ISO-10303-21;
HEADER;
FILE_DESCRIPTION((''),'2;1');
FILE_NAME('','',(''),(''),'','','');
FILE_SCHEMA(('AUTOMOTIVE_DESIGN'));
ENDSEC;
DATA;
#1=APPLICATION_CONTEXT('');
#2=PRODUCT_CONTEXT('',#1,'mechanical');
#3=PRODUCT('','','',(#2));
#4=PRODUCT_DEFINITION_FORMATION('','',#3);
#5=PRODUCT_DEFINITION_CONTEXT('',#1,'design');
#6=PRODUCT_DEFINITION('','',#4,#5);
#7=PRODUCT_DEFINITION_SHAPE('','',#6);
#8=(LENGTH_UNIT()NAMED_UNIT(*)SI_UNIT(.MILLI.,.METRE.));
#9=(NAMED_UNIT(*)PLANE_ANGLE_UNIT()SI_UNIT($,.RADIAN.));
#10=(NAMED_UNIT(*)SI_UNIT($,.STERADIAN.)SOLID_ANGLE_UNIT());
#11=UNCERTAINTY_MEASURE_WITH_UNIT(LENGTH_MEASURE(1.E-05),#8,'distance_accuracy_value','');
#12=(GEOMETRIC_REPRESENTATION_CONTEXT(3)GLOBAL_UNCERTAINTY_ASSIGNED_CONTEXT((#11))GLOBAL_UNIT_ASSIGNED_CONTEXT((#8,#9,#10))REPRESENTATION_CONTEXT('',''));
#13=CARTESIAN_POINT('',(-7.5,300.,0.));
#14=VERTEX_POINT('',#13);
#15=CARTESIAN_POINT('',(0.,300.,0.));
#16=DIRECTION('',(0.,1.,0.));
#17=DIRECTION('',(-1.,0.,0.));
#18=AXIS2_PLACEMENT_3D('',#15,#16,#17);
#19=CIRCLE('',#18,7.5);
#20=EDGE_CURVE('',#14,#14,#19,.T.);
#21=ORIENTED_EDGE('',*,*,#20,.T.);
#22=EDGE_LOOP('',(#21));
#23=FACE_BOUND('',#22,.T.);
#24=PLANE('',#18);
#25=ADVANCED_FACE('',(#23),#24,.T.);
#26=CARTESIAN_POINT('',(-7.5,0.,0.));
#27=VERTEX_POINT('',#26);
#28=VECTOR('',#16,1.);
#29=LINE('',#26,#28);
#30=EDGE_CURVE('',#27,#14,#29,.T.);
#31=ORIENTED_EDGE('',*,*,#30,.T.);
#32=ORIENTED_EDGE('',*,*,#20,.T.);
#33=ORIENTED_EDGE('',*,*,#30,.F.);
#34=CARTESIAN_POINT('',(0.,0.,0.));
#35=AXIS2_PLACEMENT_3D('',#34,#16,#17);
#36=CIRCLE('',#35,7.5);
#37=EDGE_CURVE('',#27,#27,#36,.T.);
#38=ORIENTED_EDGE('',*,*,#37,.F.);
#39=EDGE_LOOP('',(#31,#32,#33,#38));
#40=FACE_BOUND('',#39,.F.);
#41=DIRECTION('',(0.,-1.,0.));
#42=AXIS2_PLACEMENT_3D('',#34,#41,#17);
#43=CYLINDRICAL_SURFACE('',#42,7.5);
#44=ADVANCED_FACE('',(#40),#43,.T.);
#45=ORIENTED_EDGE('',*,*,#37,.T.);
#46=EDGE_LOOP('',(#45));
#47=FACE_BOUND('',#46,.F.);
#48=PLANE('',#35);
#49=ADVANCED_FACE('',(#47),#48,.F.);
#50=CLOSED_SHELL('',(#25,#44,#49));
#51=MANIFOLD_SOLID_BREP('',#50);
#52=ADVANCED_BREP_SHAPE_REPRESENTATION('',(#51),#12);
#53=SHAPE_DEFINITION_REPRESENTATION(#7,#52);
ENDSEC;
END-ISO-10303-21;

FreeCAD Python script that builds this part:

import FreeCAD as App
import Part
import Sketcher

doc = App.newDocument("Part")
body = doc.addObject("PartDesign::Body", "Body")

sketch1 = body.newObject("Sketcher::SketchObject", "Sketch")
sketch1.AttachmentSupport = (doc.getObject("XZ_Plane"), [""])
sketch1.MapMode = "FlatFace"
sketch1.addGeometry(Part.Circle(App.Vector(0, 0, 0), App.Vector(0, 0, 1), 7.5), False)
sketch1.addConstraint(Sketcher.Constraint("Coincident", 0, 3, -1, 1))
sketch1.addConstraint(Sketcher.Constraint("Diameter", 0, 15.0))
pad1 = body.newObject("PartDesign::Pad", "Pad")
pad1.Profile = sketch1
pad1.Length = 300
pad1.Reversed = True

doc.recompute()
